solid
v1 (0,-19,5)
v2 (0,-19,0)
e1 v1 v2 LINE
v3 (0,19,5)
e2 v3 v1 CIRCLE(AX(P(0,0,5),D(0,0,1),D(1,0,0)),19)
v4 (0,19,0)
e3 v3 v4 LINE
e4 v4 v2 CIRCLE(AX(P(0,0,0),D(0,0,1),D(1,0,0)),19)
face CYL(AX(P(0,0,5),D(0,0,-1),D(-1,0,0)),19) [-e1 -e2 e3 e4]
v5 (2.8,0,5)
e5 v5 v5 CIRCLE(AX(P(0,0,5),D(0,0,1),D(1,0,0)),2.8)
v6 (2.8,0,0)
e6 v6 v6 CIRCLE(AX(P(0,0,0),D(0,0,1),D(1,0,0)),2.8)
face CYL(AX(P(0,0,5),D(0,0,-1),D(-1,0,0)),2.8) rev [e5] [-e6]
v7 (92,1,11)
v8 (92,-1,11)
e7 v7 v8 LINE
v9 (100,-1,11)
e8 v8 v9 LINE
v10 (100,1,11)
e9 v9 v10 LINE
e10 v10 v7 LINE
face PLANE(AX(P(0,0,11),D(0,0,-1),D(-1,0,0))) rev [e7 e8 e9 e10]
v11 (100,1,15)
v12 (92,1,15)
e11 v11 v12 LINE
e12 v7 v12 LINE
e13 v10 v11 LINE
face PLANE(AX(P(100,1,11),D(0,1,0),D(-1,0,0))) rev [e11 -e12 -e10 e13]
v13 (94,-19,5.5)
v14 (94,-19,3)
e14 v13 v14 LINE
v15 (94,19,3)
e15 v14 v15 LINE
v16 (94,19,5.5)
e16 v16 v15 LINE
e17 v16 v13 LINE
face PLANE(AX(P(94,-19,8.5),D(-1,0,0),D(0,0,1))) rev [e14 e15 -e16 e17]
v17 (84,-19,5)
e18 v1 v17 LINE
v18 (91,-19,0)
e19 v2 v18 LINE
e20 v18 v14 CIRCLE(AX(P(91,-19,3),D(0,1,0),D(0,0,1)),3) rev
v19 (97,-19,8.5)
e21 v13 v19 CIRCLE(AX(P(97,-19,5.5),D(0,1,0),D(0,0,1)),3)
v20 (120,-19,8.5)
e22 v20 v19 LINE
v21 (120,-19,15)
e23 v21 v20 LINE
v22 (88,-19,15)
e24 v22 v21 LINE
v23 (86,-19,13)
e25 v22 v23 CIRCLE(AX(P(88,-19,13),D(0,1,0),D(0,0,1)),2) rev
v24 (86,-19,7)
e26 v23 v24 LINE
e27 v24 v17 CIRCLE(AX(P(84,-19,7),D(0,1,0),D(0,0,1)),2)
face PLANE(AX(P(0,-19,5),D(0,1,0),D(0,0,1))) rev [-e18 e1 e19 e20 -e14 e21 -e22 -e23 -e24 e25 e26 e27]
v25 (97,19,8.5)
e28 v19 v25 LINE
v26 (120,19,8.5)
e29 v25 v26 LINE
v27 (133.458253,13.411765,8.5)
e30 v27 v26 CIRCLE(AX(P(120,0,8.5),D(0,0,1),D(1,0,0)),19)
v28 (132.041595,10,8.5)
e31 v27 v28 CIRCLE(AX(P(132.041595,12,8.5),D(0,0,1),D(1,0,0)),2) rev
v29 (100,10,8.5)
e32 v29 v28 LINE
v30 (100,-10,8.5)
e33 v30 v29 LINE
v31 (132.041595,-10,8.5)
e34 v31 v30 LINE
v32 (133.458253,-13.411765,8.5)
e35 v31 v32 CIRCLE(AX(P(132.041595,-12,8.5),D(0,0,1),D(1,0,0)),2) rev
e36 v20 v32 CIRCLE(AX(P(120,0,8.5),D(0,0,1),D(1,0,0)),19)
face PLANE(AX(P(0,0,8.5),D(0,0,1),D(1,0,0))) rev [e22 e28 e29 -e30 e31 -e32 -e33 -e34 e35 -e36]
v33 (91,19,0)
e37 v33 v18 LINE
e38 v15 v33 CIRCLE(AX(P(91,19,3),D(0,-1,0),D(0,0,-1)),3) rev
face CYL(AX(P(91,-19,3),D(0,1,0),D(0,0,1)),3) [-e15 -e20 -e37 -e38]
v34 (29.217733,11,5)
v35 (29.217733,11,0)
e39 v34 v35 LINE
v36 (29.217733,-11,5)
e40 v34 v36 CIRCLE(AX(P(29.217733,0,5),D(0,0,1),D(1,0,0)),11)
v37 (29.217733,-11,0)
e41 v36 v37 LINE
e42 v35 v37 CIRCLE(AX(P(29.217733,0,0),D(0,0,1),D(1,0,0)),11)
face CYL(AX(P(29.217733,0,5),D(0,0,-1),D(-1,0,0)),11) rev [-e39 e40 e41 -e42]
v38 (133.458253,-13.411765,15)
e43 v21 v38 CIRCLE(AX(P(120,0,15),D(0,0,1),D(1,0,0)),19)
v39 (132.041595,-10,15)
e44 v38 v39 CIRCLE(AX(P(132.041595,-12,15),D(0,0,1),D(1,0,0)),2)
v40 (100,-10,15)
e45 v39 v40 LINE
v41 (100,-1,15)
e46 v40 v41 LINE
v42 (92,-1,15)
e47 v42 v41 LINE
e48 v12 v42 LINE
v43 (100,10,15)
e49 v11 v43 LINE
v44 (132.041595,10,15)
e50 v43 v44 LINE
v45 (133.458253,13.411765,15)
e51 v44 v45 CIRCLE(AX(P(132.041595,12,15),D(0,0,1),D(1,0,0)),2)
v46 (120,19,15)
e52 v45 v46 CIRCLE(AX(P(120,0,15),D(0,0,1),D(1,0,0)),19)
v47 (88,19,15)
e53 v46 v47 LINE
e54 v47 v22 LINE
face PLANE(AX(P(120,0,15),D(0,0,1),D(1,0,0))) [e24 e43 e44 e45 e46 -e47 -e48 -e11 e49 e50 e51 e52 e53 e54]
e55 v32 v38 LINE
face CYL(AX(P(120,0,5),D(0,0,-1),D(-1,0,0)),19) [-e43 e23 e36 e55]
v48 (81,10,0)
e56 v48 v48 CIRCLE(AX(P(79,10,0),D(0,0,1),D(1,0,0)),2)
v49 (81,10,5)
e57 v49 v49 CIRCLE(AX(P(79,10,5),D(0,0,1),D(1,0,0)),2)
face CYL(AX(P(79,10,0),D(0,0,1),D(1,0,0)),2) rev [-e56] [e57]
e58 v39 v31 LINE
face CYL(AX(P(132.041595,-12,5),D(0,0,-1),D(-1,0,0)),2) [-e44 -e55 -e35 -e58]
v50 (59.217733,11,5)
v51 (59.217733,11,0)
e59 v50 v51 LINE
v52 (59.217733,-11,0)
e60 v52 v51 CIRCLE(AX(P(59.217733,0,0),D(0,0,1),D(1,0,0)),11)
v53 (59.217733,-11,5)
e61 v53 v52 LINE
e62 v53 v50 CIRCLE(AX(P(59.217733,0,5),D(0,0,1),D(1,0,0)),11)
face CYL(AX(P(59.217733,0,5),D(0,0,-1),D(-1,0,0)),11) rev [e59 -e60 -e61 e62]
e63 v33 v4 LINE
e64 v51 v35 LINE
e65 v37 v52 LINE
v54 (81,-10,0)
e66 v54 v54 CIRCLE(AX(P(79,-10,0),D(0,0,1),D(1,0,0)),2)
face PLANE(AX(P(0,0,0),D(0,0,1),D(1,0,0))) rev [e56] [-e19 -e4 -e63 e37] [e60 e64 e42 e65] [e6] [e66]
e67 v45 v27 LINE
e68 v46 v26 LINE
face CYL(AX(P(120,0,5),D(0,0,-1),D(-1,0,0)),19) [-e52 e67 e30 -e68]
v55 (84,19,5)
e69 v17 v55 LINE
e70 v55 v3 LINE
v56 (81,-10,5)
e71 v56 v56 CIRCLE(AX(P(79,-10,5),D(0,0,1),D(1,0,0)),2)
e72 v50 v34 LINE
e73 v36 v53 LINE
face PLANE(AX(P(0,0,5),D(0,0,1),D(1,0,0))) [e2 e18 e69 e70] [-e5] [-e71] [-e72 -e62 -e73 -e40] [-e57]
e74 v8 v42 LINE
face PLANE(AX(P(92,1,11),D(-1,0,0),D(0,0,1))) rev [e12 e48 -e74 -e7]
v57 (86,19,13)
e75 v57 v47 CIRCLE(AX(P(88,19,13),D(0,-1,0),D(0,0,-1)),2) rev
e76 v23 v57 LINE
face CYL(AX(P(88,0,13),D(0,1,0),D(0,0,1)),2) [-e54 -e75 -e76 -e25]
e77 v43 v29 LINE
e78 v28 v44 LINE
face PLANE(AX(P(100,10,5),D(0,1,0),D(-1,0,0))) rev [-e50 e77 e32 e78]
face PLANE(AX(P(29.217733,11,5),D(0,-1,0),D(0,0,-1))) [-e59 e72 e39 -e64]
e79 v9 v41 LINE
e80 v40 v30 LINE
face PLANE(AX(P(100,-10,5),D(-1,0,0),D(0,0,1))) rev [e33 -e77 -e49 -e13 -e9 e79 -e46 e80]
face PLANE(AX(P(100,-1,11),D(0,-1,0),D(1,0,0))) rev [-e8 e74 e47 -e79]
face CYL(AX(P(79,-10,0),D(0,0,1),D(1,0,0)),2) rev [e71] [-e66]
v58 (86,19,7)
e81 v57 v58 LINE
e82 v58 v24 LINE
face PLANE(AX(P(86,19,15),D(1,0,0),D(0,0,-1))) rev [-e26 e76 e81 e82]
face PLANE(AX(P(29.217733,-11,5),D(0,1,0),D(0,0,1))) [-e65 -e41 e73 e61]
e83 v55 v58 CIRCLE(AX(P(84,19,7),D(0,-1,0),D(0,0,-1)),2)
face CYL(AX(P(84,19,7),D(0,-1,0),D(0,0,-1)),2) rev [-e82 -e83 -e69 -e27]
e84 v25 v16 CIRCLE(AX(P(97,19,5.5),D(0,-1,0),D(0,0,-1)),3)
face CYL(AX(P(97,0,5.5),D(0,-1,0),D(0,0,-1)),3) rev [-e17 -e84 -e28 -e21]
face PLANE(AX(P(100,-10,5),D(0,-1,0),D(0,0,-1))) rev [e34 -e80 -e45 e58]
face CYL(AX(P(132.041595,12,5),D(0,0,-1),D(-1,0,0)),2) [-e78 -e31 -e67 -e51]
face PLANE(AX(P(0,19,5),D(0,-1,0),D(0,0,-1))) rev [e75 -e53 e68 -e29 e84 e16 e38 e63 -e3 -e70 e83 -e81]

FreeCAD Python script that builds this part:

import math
import FreeCAD as App
import Part
import Sketcher

V = App.Vector


def edges_at(feature, points):
    """Names of the edges that pass closest to the given points."""
    edges = feature.Shape.Edges
    near = lambda p: min(range(len(edges)), key=lambda i: edges[i].distToShape(Part.Vertex(*p))[0])
    return sorted({f"Edge{near(p) + 1}" for p in points})

doc = App.newDocument("Part")
params = doc.addObject("Spreadsheet::Sheet", "Params")
for row, (alias, value) in enumerate([
    ("sketch1_radius", "19 mm"),
    ("sketch1_radius2", "11 mm"),
    ("sketch1_diameter", "5.6 mm"),
    ("sketch1_width", "120 mm"),
    ("sketch1_width2", "30 mm"),
    ("pad1_length", "5 mm"),
    ("fillet_radius", "2 mm"),
    ("sketch2_radius", "19 mm"),
    ("sketch2_radius2", "2 mm"),
    ("sketch2_width", "34 mm"),
    ("sketch2_height", "20 mm"),
    ("pad2_length", "10 mm"),
    ("fillet2_radius", "2 mm"),
    ("sketch3_width", "8 mm"),
    ("sketch3_height", "2 mm"),
    ("pocket1_length", "4 mm"),
    ("sketch4_diameter", "4 mm"),
    ("pocket2_length", "5 mm"),
    ("sketch5_height", "38 mm"),
    ("pocket3_length", "8.5 mm"),
    ("fillet3_radius", "3 mm"),
], start=1):
    params.set(f"A{row}", alias)
    params.set(f"B{row}", "=" + value)
    params.setAlias(f"B{row}", alias)

body = doc.addObject("PartDesign::Body", "Body")

sketch1 = body.newObject("Sketcher::SketchObject", "Sketch")
sketch1.AttachmentSupport = (doc.getObject("XY_Plane"), [""])
sketch1.MapMode = "FlatFace"
sketch1.addGeometry(Part.LineSegment(V(120, 19, 0), V(0, 19, 0)), False)
sketch1.addGeometry(Part.ArcOfCircle(Part.Circle(V(0, 0, 0), V(0, 0, 1), 19), math.radians(90), math.radians(270)), False)
sketch1.addGeometry(Part.LineSegment(V(0, -19, 0), V(120, -19, 0)), False)
sketch1.addGeometry(Part.ArcOfCircle(Part.Circle(V(120, 0, 0), V(0, 0, 1), 19), math.radians(-90), math.radians(-31.756864)), False)
sketch1.addGeometry(Part.LineSegment(V(136.155494, -10, 0), V(100, -10, 0)), False)
sketch1.addGeometry(Part.LineSegment(V(100, -10, 0), V(100, 10, 0)), False)
sketch1.addGeometry(Part.LineSegment(V(100, 10, 0), V(136.155494, 10, 0)), False)
sketch1.addGeometry(Part.ArcOfCircle(Part.Circle(V(120, 0, 0), V(0, 0, 1), 19), math.radians(31.756864), math.radians(90)), False)
sketch1.addGeometry(Part.LineSegment(V(29.217733, 11, 0), V(59.217733, 11, 0)), False)
sketch1.addGeometry(Part.ArcOfCircle(Part.Circle(V(59.217733, 0, 0), V(0, 0, 1), 11), math.radians(-90), math.radians(90)), False)
sketch1.addGeometry(Part.LineSegment(V(59.217733, -11, 0), V(29.217733, -11, 0)), False)
sketch1.addGeometry(Part.ArcOfCircle(Part.Circle(V(29.217733, 0, 0), V(0, 0, 1), 11), math.radians(90), math.radians(270)), False)
sketch1.addGeometry(Part.Circle(V(0, 0, 0), V(0, 0, 1), 2.8), False)
sketch1.addConstraint(Sketcher.Constraint("Tangent", 0, 2, 1, 1))
sketch1.addConstraint(Sketcher.Constraint("Tangent", 1, 2, 2, 1))
sketch1.addConstraint(Sketcher.Constraint("Tangent", 2, 2, 3, 1))
sketch1.addConstraint(Sketcher.Constraint("Coincident", 3, 2, 4, 1))
sketch1.addConstraint(Sketcher.Constraint("Coincident", 4, 2, 5, 1))
sketch1.addConstraint(Sketcher.Constraint("Coincident", 5, 2, 6, 1))
sketch1.addConstraint(Sketcher.Constraint("Coincident", 6, 2, 7, 1))
sketch1.addConstraint(Sketcher.Constraint("Tangent", 7, 2, 0, 1))
sketch1.addConstraint(Sketcher.Constraint("Tangent", 8, 2, 9, 2))
sketch1.addConstraint(Sketcher.Constraint("Tangent", 9, 1, 10, 1))
sketch1.addConstraint(Sketcher.Constraint("Tangent", 10, 2, 11, 2))
sketch1.addConstraint(Sketcher.Constraint("Tangent", 11, 1, 8, 1))
sketch1.addConstraint(Sketcher.Constraint("Horizontal", 0))
sketch1.addConstraint(Sketcher.Constraint("Horizontal", 2))
sketch1.addConstraint(Sketcher.Constraint("Horizontal", 4))
sketch1.addConstraint(Sketcher.Constraint("Vertical", 5))
sketch1.addConstraint(Sketcher.Constraint("Horizontal", 6))
sketch1.addConstraint(Sketcher.Constraint("Horizontal", 8))
sketch1.addConstraint(Sketcher.Constraint("Horizontal", 10))
sketch1.addConstraint(Sketcher.Constraint("Coincident", 1, 3, -1, 1))
sketch1.addConstraint(Sketcher.Constraint("Coincident", 12, 3, -1, 1))
sketch1.addConstraint(Sketcher.Constraint("Coincident", 7, 3, 3, 3))
sketch1.addConstraint(Sketcher.Constraint("Equal", 1, 3))
sketch1.addConstraint(Sketcher.Constraint("PointOnObject", 9, 3, -1))
sketch1.addConstraint(Sketcher.Constraint("Vertical", 3, 2, 6, 2))
sketch1.addConstraint(Sketcher.Constraint("Radius", 1, 19.0))
sketch1.addConstraint(Sketcher.Constraint("Radius", 9, 11.0))
sketch1.addConstraint(Sketcher.Constraint("Diameter", 12, 5.6))
sketch1.addConstraint(Sketcher.Constraint("DistanceX", 0, 2, 0, 1, 120.0))
sketch1.addConstraint(Sketcher.Constraint("DistanceX", 8, 1, 8, 2, 30.0))
sketch1.addConstraint(Sketcher.Constraint("DistanceY", 5, 1, 5, 2, 20.0))
sketch1.addConstraint(Sketcher.Constraint("DistanceX", -1, 1, 4, 2, 100.0))
sketch1.addConstraint(Sketcher.Constraint("DistanceX", 9, 3, 3, 2, 76.937761))
sketch1.setExpression("Constraints[25]", "Params.sketch1_radius")
sketch1.setExpression("Constraints[26]", "Params.sketch1_radius2")
sketch1.setExpression("Constraints[27]", "Params.sketch1_diameter")
sketch1.setExpression("Constraints[28]", "Params.sketch1_width")
sketch1.setExpression("Constraints[29]", "Params.sketch1_width2")
pad1 = body.newObject("PartDesign::Pad", "Pad")
pad1.Profile = sketch1
pad1.setExpression("Length", "Params.pad1_length")
doc.recompute()

fillet = body.newObject("PartDesign::Fillet", "Fillet")
fillet.Base = (pad1, edges_at(pad1, [(136.155, 10, 2.5), (136.155, -10, 2.5)]))
fillet.setExpression("Radius", "Params.fillet_radius")

sketch2 = body.newObject("Sketcher::SketchObject", "Sketch001")
sketch2.AttachmentSupport = (doc.getObject("XY_Plane"), [""])
sketch2.MapMode = "FlatFace"
sketch2.AttachmentOffset = App.Placement(V(0, 0, 5), App.Rotation())
sketch2.addGeometry(Part.LineSegment(V(86, 19, 0), V(86, -19, 0)), False)
sketch2.addGeometry(Part.LineSegment(V(86, -19, 0), V(120, -19, 0)), False)
sketch2.addGeometry(Part.ArcOfCircle(Part.Circle(V(120, 0, 0), V(0, 0, 1), 19), math.radians(-90), math.radians(-44.900872)), False)
sketch2.addGeometry(Part.ArcOfCircle(Part.Circle(V(132.041595, -12, 0), V(0, 0, 1), 2), math.radians(-44.900872), math.radians(90)), False)
sketch2.addGeometry(Part.LineSegment(V(132.041595, -10, 0), V(100, -10, 0)), False)
sketch2.addGeometry(Part.LineSegment(V(100, -10, 0), V(100, 10, 0)), False)
sketch2.addGeometry(Part.LineSegment(V(100, 10, 0), V(132.041595, 10, 0)), False)
sketch2.addGeometry(Part.ArcOfCircle(Part.Circle(V(132.041595, 12, 0), V(0, 0, 1), 2), math.radians(-90), math.radians(44.900872)), False)
sketch2.addGeometry(Part.ArcOfCircle(Part.Circle(V(120, 0, 0), V(0, 0, 1), 19), math.radians(44.900872), math.radians(90)), False)
sketch2.addGeometry(Part.LineSegment(V(120, 19, 0), V(86, 19, 0)), False)
sketch2.addConstraint(Sketcher.Constraint("Coincident", 0, 2, 1, 1))
sketch2.addConstraint(Sketcher.Constraint("Tangent", 1, 2, 2, 1))
sketch2.addConstraint(Sketcher.Constraint("Tangent", 2, 2, 3, 1))
sketch2.addConstraint(Sketcher.Constraint("Tangent", 3, 2, 4, 1))
sketch2.addConstraint(Sketcher.Constraint("Coincident", 4, 2, 5, 1))
sketch2.addConstraint(Sketcher.Constraint("Coincident", 5, 2, 6, 1))
sketch2.addConstraint(Sketcher.Constraint("Tangent", 6, 2, 7, 1))
sketch2.addConstraint(Sketcher.Constraint("Tangent", 7, 2, 8, 1))
sketch2.addConstraint(Sketcher.Constraint("Tangent", 8, 2, 9, 1))
sketch2.addConstraint(Sketcher.Constraint("Coincident", 9, 2, 0, 1))
sketch2.addConstraint(Sketcher.Constraint("Vertical", 0))
sketch2.addConstraint(Sketcher.Constraint("Horizontal", 1))
sketch2.addConstraint(Sketcher.Constraint("Horizontal", 4))
sketch2.addConstraint(Sketcher.Constraint("Vertical", 5))
sketch2.addConstraint(Sketcher.Constraint("Horizontal", 6))
sketch2.addConstraint(Sketcher.Constraint("Horizontal", 9))
sketch2.addConstraint(Sketcher.Constraint("Coincident", 8, 3, 2, 3))
sketch2.addConstraint(Sketcher.Constraint("Equal", 3, 7))
sketch2.addConstraint(Sketcher.Constraint("Equal", 2, 8))
sketch2.addConstraint(Sketcher.Constraint("Symmetric", 3, 3, 7, 3, -1))
sketch2.addConstraint(Sketcher.Constraint("Radius", 2, 19.0))
sketch2.addConstraint(Sketcher.Constraint("Radius", 3, 2.0))
sketch2.addConstraint(Sketcher.Constraint("DistanceX", 1, 1, 1, 2, 34.0))
sketch2.addConstraint(Sketcher.Constraint("DistanceY", 5, 1, 5, 2, 20.0))
sketch2.addConstraint(Sketcher.Constraint("DistanceX", -1, 1, 2, 3, 120.0))
sketch2.addConstraint(Sketcher.Constraint("DistanceX", -1, 1, 4, 2, 100.0))
sketch2.setExpression("Constraints[20]", "Params.sketch2_radius")
sketch2.setExpression("Constraints[21]", "Params.sketch2_radius2")
sketch2.setExpression("Constraints[22]", "Params.sketch2_width")
sketch2.setExpression("Constraints[23]", "Params.sketch2_height")
pad2 = body.newObject("PartDesign::Pad", "Pad001")
pad2.Profile = sketch2
pad2.setExpression("Length", "Params.pad2_length")
doc.recompute()

fillet2 = body.newObject("PartDesign::Fillet", "Fillet001")
fillet2.Base = (pad2, edges_at(pad2, [(86, 0, 5), (86, 0, 15)]))
fillet2.setExpression("Radius", "Params.fillet2_radius")

sketch3 = body.newObject("Sketcher::SketchObject", "Sketch002")
sketch3.AttachmentSupport = (doc.getObject("XY_Plane"), [""])
sketch3.MapMode = "FlatFace"
sketch3.AttachmentOffset = App.Placement(V(0, 0, 15), App.Rotation())
sketch3.addGeometry(Part.LineSegment(V(92, 1, 0), V(92, -1, 0)), False)
sketch3.addGeometry(Part.LineSegment(V(92, -1, 0), V(100, -1, 0)), False)
sketch3.addGeometry(Part.LineSegment(V(100, -1, 0), V(100, 1, 0)), False)
sketch3.addGeometry(Part.LineSegment(V(100, 1, 0), V(92, 1, 0)), False)
sketch3.addConstraint(Sketcher.Constraint("Coincident", 0, 2, 1, 1))
sketch3.addConstraint(Sketcher.Constraint("Coincident", 1, 2, 2, 1))
sketch3.addConstraint(Sketcher.Constraint("Coincident", 2, 2, 3, 1))
sketch3.addConstraint(Sketcher.Constraint("Coincident", 3, 2, 0, 1))
sketch3.addConstraint(Sketcher.Constraint("Vertical", 0))
sketch3.addConstraint(Sketcher.Constraint("Horizontal", 1))
sketch3.addConstraint(Sketcher.Constraint("Vertical", 2))
sketch3.addConstraint(Sketcher.Constraint("Horizontal", 3))
sketch3.addConstraint(Sketcher.Constraint("DistanceX", 1, 1, 1, 2, 8.0))
sketch3.addConstraint(Sketcher.Constraint("DistanceY", 0, 2, 0, 1, 2.0))
sketch3.addConstraint(Sketcher.Constraint("DistanceX", -1, 1, 0, 2, 92.0))
sketch3.addConstraint(Sketcher.Constraint("DistanceY", 0, 2, -1, 1, 1.0))
sketch3.setExpression("Constraints[8]", "Params.sketch3_width")
sketch3.setExpression("Constraints[9]", "Params.sketch3_height")
pocket1 = body.newObject("PartDesign::Pocket", "Pocket")
pocket1.Profile = sketch3
pocket1.setExpression("Length", "Params.pocket1_length")

sketch4 = body.newObject("Sketcher::SketchObject", "Sketch003")
sketch4.AttachmentSupport = (doc.getObject("XY_Plane"), [""])
sketch4.MapMode = "FlatFace"
sketch4.AttachmentOffset = App.Placement(V(0, 0, 5), App.Rotation())
sketch4.addGeometry(Part.Circle(V(79, 10, 0), V(0, 0, 1), 2), False)
sketch4.addGeometry(Part.Circle(V(79, -10, 0), V(0, 0, 1), 2), False)
sketch4.addConstraint(Sketcher.Constraint("Equal", 0, 1))
sketch4.addConstraint(Sketcher.Constraint("Symmetric", 0, 3, 1, 3, -1))
sketch4.addConstraint(Sketcher.Constraint("Diameter", 0, 4.0))
sketch4.addConstraint(Sketcher.Constraint("DistanceX", -1, 1, 0, 3, 79.0))
sketch4.addConstraint(Sketcher.Constraint("DistanceY", -1, 1, 0, 3, 10.0))
sketch4.setExpression("Constraints[2]", "Params.sketch4_diameter")
pocket2 = body.newObject("PartDesign::Pocket", "Pocket001")
pocket2.Profile = sketch4
pocket2.setExpression("Length", "Params.pocket2_length")

sketch5 = body.newObject("Sketcher::SketchObject", "Sketch004")
sketch5.AttachmentSupport = (doc.getObject("XY_Plane"), [""])
sketch5.MapMode = "FlatFace"
sketch5.addGeometry(Part.LineSegment(V(183.229867, 19, 0), V(183.229867, -19, 0)), False)
sketch5.addGeometry(Part.LineSegment(V(183.229867, -19, 0), V(94, -19, 0)), False)
sketch5.addGeometry(Part.LineSegment(V(94, -19, 0), V(94, 19, 0)), False)
sketch5.addGeometry(Part.LineSegment(V(94, 19, 0), V(183.229867, 19, 0)), False)
sketch5.addConstraint(Sketcher.Constraint("Coincident", 0, 2, 1, 1))
sketch5.addConstraint(Sketcher.Constraint("Coincident", 1, 2, 2, 1))
sketch5.addConstraint(Sketcher.Constraint("Coincident", 2, 2, 3, 1))
sketch5.addConstraint(Sketcher.Constraint("Coincident", 3, 2, 0, 1))
sketch5.addConstraint(Sketcher.Constraint("Vertical", 0))
sketch5.addConstraint(Sketcher.Constraint("Horizontal", 1))
sketch5.addConstraint(Sketcher.Constraint("Vertical", 2))
sketch5.addConstraint(Sketcher.Constraint("Horizontal", 3))
sketch5.addConstraint(Sketcher.Constraint("DistanceY", 0, 2, 0, 1, 38.0))
sketch5.addConstraint(Sketcher.Constraint("DistanceY", 0, 2, -1, 1, 19.0))
sketch5.addConstraint(Sketcher.Constraint("DistanceX", -1, 1, 1, 2, 94.0))
sketch5.addConstraint(Sketcher.Constraint("DistanceX", 1, 2, 1, 1, 89.229867))
sketch5.setExpression("Constraints[8]", "Params.sketch5_height")
pocket3 = body.newObject("PartDesign::Pocket", "Pocket002")
pocket3.Profile = sketch5
pocket3.setExpression("Length", "Params.pocket3_length")
pocket3.Reversed = True
doc.recompute()

fillet3 = body.newObject("PartDesign::Fillet", "Fillet002")
fillet3.Base = (pocket3, edges_at(pocket3, [(94, 0, 0), (94, 0, 8.5)]))
fillet3.setExpression("Radius", "Params.fillet3_radius")

doc.recompute()
